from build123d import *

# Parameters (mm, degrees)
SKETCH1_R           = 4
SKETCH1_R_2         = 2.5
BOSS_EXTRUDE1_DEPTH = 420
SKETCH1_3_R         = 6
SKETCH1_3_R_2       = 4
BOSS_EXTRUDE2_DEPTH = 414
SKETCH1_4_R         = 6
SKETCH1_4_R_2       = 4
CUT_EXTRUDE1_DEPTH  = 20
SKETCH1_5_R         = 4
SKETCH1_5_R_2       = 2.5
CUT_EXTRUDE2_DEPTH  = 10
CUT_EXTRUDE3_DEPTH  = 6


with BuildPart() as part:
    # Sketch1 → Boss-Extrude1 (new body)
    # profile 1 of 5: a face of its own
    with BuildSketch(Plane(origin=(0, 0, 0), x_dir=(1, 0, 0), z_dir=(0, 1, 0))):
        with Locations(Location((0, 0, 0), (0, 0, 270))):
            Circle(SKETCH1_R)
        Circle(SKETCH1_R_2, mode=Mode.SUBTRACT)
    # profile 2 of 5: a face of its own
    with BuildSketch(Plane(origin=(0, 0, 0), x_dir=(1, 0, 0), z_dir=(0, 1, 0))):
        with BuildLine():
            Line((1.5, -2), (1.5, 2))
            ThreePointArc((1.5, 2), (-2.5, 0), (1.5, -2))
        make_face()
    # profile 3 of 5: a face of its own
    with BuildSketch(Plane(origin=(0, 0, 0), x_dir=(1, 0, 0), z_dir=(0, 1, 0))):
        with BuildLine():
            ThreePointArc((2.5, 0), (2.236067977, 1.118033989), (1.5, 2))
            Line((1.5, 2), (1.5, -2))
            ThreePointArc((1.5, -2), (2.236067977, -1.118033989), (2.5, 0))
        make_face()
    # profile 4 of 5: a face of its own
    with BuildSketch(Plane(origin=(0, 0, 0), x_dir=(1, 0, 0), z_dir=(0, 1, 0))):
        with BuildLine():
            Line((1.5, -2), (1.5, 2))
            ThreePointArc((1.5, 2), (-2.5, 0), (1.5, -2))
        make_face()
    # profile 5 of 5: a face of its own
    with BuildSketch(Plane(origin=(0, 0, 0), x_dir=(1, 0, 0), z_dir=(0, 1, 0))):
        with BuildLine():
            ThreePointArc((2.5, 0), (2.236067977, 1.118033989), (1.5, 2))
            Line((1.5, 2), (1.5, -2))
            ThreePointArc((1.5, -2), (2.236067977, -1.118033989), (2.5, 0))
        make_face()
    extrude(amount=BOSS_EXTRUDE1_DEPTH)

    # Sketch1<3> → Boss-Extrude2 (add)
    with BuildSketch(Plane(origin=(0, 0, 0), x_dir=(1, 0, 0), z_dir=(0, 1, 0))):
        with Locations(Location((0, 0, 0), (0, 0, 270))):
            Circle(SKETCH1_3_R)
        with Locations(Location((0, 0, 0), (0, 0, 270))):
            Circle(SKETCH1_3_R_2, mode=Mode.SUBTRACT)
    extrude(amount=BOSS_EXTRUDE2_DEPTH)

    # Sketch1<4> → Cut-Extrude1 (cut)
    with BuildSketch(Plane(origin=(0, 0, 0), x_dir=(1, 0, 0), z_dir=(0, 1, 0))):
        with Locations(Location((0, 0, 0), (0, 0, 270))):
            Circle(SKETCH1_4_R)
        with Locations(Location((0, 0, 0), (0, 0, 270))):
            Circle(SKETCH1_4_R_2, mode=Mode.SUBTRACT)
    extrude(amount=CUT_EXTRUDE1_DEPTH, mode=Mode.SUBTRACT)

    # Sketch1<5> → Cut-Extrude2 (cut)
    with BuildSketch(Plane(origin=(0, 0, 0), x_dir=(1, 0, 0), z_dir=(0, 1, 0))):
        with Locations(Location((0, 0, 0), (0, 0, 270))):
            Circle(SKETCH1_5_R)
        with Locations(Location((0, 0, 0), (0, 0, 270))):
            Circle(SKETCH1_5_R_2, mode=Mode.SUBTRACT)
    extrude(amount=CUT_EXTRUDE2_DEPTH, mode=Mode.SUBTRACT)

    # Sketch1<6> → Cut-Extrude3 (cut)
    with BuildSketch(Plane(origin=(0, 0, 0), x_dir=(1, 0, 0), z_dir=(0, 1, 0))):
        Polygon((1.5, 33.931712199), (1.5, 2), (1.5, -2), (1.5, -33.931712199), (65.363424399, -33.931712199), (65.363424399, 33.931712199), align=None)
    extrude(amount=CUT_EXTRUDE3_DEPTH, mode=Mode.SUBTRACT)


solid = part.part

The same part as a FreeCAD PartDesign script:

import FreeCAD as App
import Part
import Sketcher
from FreeCAD import Vector
Q = App.Units.Quantity

doc = App.newDocument("Part")
body = doc.addObject("PartDesign::Body", "Body")

sketch1 = body.newObject("Sketcher::SketchObject", "Sketch")
sketch1.AttachmentSupport = (doc.getObject("XZ_Plane"), [""])
sketch1.MapMode = "FlatFace"
sketch1.addGeometry(Part.Circle(Vector(0, 0, 0), Vector(0, 0, 1), 4), False)
sketch1.addConstraint([
    Sketcher.Constraint("Coincident", 0, 3, -1, 1),
    Sketcher.Constraint("Diameter", 0, Q("8 mm")),
])
pad1 = body.newObject("PartDesign::Pad", "Pad")
pad1.Profile = sketch1
pad1.Length = 420
pad1.Reversed = True

sketch2 = body.newObject("Sketcher::SketchObject", "Sketch001")
sketch2.AttachmentSupport = (doc.getObject("XZ_Plane"), [""])
sketch2.MapMode = "FlatFace"
sketch2.addGeometry([
    Part.Circle(Vector(0, 0, 0), Vector(0, 0, 1), 6),
    Part.Circle(Vector(0, 0, 0), Vector(0, 0, 1), 4),
], False)
sketch2.addConstraint([
    Sketcher.Constraint("Coincident", 0, 3, -1, 1),
    Sketcher.Constraint("Coincident", 1, 3, -1, 1),
    Sketcher.Constraint("Diameter", 0, Q("12 mm")),
    Sketcher.Constraint("Diameter", 1, Q("8 mm")),
])
pad2 = body.newObject("PartDesign::Pad", "Pad001")
pad2.Profile = sketch2
pad2.Length = 414
pad2.Reversed = True

sketch3 = body.newObject("Sketcher::SketchObject", "Sketch002")
sketch3.AttachmentSupport = (doc.getObject("XZ_Plane"), [""])
sketch3.MapMode = "FlatFace"
sketch3.addGeometry([
    Part.Circle(Vector(0, 0, 0), Vector(0, 0, 1), 6),
    Part.Circle(Vector(0, 0, 0), Vector(0, 0, 1), 4),
], False)
sketch3.addConstraint([
    Sketcher.Constraint("Coincident", 0, 3, -1, 1),
    Sketcher.Constraint("Coincident", 1, 3, -1, 1),
    Sketcher.Constraint("Diameter", 0, Q("12 mm")),
    Sketcher.Constraint("Diameter", 1, Q("8 mm")),
])
pocket1 = body.newObject("PartDesign::Pocket", "Pocket")
pocket1.Profile = sketch3
pocket1.Length = 20

sketch4 = body.newObject("Sketcher::SketchObject", "Sketch003")
sketch4.AttachmentSupport = (doc.getObject("XZ_Plane"), [""])
sketch4.MapMode = "FlatFace"
sketch4.addGeometry([
    Part.Circle(Vector(0, 0, 0), Vector(0, 0, 1), 4),
    Part.Circle(Vector(0, 0, 0), Vector(0, 0, 1), 2.5),
], False)
sketch4.addConstraint([
    Sketcher.Constraint("Coincident", 0, 3, -1, 1),
    Sketcher.Constraint("Coincident", 1, 3, -1, 1),
    Sketcher.Constraint("Diameter", 0, Q("8 mm")),
    Sketcher.Constraint("Diameter", 1, Q("5 mm")),
])
pocket2 = body.newObject("PartDesign::Pocket", "Pocket001")
pocket2.Profile = sketch4
pocket2.Length = 10

sketch5 = body.newObject("Sketcher::SketchObject", "Sketch004")
sketch5.AttachmentSupport = (doc.getObject("XZ_Plane"), [""])
sketch5.MapMode = "FlatFace"
sketch5.addGeometry([
    Part.LineSegment(Vector(2, -34, 0), Vector(2, 34, 0)),
    Part.LineSegment(Vector(2, 34, 0), Vector(65, 34, 0)),
    Part.LineSegment(Vector(65, 34, 0), Vector(65, -34, 0)),
    Part.LineSegment(Vector(65, -34, 0), Vector(2, -34, 0)),
], False)
sketch5.addConstraint([
    Sketcher.Constraint("Coincident", 0, 2, 1, 1),
    Sketcher.Constraint("Coincident", 1, 2, 2, 1),
    Sketcher.Constraint("Coincident", 2, 2, 3, 1),
    Sketcher.Constraint("Coincident", 3, 2, 0, 1),
    Sketcher.Constraint("Vertical", 0),
    Sketcher.Constraint("Horizontal", 1),
    Sketcher.Constraint("Vertical", 2),
    Sketcher.Constraint("Horizontal", 3),
    Sketcher.Constraint("DistanceX", -1, 1, 0, 2, Q("1.5 mm")),
    Sketcher.Constraint("DistanceX", 1, 1, 1, 2, Q("63.863424 mm")),
    Sketcher.Constraint("DistanceY", 0, 1, 0, 2, Q("67.863424 mm")),
    Sketcher.Constraint("DistanceY", -1, 1, 0, 2, Q("33.931712 mm")),
])
pocket3 = body.newObject("PartDesign::Pocket", "Pocket002")
pocket3.Profile = sketch5
pocket3.Length = 6

doc.recompute()
